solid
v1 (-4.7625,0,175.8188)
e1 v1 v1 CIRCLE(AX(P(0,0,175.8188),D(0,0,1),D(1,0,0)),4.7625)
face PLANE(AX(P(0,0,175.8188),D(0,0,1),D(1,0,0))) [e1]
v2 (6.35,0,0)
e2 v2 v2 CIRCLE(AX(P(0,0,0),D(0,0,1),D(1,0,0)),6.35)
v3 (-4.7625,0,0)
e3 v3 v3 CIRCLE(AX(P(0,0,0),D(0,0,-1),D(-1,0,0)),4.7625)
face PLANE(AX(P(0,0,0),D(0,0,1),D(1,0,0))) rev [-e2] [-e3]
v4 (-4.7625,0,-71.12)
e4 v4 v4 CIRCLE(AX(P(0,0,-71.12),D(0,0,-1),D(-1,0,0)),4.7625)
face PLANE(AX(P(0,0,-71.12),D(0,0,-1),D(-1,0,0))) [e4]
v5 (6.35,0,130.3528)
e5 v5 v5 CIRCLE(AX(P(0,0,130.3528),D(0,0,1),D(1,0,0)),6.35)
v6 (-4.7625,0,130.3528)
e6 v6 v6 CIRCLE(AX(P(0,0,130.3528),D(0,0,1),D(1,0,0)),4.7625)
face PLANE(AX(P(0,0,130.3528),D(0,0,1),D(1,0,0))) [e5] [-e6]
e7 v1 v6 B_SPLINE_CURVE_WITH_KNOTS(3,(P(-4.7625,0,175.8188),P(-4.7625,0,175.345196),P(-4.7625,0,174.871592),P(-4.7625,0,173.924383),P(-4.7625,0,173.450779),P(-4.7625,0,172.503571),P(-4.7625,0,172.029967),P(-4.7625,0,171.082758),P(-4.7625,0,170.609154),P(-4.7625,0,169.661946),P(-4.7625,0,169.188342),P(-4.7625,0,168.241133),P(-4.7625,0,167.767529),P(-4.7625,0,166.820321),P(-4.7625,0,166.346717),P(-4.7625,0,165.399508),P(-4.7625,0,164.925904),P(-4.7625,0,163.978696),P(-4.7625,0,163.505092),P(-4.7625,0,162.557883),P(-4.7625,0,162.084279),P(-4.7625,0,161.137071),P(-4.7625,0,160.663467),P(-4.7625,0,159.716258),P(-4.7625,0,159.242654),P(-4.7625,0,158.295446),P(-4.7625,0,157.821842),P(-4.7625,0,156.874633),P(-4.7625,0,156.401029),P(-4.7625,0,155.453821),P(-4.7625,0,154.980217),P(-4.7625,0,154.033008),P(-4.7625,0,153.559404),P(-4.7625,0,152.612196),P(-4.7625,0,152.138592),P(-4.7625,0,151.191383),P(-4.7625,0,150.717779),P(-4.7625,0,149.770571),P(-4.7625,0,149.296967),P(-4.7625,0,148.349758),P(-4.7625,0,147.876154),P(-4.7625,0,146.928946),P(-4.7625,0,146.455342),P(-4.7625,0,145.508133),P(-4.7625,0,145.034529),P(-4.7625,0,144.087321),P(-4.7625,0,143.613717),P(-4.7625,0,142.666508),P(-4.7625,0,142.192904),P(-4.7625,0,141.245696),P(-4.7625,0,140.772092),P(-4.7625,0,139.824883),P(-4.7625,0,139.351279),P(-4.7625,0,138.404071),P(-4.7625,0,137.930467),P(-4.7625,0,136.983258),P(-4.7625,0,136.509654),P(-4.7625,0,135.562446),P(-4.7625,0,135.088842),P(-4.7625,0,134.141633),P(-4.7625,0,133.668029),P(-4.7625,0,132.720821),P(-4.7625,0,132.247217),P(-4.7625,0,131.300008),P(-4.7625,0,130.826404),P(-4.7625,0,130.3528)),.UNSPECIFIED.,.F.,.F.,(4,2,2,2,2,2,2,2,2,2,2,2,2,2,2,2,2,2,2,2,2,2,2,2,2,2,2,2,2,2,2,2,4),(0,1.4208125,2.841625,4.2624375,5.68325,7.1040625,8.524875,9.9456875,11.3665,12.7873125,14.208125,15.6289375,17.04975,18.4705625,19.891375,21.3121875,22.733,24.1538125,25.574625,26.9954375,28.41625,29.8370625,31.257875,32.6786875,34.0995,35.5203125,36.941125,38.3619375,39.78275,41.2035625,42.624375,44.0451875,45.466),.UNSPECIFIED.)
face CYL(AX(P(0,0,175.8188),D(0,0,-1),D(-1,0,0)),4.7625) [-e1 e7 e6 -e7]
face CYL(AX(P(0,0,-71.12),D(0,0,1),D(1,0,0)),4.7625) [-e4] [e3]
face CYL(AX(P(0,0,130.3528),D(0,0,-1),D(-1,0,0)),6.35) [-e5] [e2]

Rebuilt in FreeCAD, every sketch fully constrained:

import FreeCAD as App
import Part
import Sketcher
Q = App.Units.Quantity

doc = App.newDocument("Part")
body = doc.addObject("PartDesign::Body", "Body")

sketch1 = body.newObject("Sketcher::SketchObject", "Sketch")
sketch1.AttachmentSupport = (doc.getObject("XY_Plane"), [""])
sketch1.MapMode = "FlatFace"
sketch1.addGeometry(Part.Circle(App.Vector(0, 0, 0), App.Vector(0, 0, 1), 6.35), False)
sketch1.addConstraint([
    Sketcher.Constraint("Coincident", 0, 3, -1, 1),
    Sketcher.Constraint("Diameter", 0, Q("0.5 in")),
])
pad1 = body.newObject("PartDesign::Pad", "Pad")
pad1.Profile = sketch1
pad1.Length = Q("5.132 in")

sketch2 = body.newObject("Sketcher::SketchObject", "Sketch001")
sketch2.AttachmentSupport = (doc.getObject("XY_Plane"), [""])
sketch2.MapMode = "FlatFace"
sketch2.AttachmentOffset = App.Placement(App.Vector(0, 0, 5.132 * 25.4), App.Rotation())
sketch2.addGeometry(Part.Circle(App.Vector(0, 0, 0), App.Vector(0, 0, 1), 4.7625), False)
sketch2.addConstraint([
    Sketcher.Constraint("Coincident", 0, 3, -1, 1),
    Sketcher.Constraint("Diameter", 0, Q("0.375 in")),
])
pad2 = body.newObject("PartDesign::Pad", "Pad001")
pad2.Profile = sketch2
pad2.Length = Q("1.79 in")

sketch3 = body.newObject("Sketcher::SketchObject", "Sketch002")
sketch3.AttachmentSupport = (doc.getObject("XY_Plane"), [""])
sketch3.MapMode = "FlatFace"
sketch3.AttachmentOffset = App.Placement(App.Vector(0, 0, -2.8 * 25.4), App.Rotation())
sketch3.addGeometry(Part.Circle(App.Vector(0, 0, 0), App.Vector(0, 0, 1), 4.7625), False)
sketch3.addConstraint([
    Sketcher.Constraint("Coincident", 0, 3, -1, 1),
    Sketcher.Constraint("Diameter", 0, Q("0.375 in")),
])
pad3 = body.newObject("PartDesign::Pad", "Pad002")
pad3.Profile = sketch3
pad3.Length = Q("2.8 in")

doc.recompute()
